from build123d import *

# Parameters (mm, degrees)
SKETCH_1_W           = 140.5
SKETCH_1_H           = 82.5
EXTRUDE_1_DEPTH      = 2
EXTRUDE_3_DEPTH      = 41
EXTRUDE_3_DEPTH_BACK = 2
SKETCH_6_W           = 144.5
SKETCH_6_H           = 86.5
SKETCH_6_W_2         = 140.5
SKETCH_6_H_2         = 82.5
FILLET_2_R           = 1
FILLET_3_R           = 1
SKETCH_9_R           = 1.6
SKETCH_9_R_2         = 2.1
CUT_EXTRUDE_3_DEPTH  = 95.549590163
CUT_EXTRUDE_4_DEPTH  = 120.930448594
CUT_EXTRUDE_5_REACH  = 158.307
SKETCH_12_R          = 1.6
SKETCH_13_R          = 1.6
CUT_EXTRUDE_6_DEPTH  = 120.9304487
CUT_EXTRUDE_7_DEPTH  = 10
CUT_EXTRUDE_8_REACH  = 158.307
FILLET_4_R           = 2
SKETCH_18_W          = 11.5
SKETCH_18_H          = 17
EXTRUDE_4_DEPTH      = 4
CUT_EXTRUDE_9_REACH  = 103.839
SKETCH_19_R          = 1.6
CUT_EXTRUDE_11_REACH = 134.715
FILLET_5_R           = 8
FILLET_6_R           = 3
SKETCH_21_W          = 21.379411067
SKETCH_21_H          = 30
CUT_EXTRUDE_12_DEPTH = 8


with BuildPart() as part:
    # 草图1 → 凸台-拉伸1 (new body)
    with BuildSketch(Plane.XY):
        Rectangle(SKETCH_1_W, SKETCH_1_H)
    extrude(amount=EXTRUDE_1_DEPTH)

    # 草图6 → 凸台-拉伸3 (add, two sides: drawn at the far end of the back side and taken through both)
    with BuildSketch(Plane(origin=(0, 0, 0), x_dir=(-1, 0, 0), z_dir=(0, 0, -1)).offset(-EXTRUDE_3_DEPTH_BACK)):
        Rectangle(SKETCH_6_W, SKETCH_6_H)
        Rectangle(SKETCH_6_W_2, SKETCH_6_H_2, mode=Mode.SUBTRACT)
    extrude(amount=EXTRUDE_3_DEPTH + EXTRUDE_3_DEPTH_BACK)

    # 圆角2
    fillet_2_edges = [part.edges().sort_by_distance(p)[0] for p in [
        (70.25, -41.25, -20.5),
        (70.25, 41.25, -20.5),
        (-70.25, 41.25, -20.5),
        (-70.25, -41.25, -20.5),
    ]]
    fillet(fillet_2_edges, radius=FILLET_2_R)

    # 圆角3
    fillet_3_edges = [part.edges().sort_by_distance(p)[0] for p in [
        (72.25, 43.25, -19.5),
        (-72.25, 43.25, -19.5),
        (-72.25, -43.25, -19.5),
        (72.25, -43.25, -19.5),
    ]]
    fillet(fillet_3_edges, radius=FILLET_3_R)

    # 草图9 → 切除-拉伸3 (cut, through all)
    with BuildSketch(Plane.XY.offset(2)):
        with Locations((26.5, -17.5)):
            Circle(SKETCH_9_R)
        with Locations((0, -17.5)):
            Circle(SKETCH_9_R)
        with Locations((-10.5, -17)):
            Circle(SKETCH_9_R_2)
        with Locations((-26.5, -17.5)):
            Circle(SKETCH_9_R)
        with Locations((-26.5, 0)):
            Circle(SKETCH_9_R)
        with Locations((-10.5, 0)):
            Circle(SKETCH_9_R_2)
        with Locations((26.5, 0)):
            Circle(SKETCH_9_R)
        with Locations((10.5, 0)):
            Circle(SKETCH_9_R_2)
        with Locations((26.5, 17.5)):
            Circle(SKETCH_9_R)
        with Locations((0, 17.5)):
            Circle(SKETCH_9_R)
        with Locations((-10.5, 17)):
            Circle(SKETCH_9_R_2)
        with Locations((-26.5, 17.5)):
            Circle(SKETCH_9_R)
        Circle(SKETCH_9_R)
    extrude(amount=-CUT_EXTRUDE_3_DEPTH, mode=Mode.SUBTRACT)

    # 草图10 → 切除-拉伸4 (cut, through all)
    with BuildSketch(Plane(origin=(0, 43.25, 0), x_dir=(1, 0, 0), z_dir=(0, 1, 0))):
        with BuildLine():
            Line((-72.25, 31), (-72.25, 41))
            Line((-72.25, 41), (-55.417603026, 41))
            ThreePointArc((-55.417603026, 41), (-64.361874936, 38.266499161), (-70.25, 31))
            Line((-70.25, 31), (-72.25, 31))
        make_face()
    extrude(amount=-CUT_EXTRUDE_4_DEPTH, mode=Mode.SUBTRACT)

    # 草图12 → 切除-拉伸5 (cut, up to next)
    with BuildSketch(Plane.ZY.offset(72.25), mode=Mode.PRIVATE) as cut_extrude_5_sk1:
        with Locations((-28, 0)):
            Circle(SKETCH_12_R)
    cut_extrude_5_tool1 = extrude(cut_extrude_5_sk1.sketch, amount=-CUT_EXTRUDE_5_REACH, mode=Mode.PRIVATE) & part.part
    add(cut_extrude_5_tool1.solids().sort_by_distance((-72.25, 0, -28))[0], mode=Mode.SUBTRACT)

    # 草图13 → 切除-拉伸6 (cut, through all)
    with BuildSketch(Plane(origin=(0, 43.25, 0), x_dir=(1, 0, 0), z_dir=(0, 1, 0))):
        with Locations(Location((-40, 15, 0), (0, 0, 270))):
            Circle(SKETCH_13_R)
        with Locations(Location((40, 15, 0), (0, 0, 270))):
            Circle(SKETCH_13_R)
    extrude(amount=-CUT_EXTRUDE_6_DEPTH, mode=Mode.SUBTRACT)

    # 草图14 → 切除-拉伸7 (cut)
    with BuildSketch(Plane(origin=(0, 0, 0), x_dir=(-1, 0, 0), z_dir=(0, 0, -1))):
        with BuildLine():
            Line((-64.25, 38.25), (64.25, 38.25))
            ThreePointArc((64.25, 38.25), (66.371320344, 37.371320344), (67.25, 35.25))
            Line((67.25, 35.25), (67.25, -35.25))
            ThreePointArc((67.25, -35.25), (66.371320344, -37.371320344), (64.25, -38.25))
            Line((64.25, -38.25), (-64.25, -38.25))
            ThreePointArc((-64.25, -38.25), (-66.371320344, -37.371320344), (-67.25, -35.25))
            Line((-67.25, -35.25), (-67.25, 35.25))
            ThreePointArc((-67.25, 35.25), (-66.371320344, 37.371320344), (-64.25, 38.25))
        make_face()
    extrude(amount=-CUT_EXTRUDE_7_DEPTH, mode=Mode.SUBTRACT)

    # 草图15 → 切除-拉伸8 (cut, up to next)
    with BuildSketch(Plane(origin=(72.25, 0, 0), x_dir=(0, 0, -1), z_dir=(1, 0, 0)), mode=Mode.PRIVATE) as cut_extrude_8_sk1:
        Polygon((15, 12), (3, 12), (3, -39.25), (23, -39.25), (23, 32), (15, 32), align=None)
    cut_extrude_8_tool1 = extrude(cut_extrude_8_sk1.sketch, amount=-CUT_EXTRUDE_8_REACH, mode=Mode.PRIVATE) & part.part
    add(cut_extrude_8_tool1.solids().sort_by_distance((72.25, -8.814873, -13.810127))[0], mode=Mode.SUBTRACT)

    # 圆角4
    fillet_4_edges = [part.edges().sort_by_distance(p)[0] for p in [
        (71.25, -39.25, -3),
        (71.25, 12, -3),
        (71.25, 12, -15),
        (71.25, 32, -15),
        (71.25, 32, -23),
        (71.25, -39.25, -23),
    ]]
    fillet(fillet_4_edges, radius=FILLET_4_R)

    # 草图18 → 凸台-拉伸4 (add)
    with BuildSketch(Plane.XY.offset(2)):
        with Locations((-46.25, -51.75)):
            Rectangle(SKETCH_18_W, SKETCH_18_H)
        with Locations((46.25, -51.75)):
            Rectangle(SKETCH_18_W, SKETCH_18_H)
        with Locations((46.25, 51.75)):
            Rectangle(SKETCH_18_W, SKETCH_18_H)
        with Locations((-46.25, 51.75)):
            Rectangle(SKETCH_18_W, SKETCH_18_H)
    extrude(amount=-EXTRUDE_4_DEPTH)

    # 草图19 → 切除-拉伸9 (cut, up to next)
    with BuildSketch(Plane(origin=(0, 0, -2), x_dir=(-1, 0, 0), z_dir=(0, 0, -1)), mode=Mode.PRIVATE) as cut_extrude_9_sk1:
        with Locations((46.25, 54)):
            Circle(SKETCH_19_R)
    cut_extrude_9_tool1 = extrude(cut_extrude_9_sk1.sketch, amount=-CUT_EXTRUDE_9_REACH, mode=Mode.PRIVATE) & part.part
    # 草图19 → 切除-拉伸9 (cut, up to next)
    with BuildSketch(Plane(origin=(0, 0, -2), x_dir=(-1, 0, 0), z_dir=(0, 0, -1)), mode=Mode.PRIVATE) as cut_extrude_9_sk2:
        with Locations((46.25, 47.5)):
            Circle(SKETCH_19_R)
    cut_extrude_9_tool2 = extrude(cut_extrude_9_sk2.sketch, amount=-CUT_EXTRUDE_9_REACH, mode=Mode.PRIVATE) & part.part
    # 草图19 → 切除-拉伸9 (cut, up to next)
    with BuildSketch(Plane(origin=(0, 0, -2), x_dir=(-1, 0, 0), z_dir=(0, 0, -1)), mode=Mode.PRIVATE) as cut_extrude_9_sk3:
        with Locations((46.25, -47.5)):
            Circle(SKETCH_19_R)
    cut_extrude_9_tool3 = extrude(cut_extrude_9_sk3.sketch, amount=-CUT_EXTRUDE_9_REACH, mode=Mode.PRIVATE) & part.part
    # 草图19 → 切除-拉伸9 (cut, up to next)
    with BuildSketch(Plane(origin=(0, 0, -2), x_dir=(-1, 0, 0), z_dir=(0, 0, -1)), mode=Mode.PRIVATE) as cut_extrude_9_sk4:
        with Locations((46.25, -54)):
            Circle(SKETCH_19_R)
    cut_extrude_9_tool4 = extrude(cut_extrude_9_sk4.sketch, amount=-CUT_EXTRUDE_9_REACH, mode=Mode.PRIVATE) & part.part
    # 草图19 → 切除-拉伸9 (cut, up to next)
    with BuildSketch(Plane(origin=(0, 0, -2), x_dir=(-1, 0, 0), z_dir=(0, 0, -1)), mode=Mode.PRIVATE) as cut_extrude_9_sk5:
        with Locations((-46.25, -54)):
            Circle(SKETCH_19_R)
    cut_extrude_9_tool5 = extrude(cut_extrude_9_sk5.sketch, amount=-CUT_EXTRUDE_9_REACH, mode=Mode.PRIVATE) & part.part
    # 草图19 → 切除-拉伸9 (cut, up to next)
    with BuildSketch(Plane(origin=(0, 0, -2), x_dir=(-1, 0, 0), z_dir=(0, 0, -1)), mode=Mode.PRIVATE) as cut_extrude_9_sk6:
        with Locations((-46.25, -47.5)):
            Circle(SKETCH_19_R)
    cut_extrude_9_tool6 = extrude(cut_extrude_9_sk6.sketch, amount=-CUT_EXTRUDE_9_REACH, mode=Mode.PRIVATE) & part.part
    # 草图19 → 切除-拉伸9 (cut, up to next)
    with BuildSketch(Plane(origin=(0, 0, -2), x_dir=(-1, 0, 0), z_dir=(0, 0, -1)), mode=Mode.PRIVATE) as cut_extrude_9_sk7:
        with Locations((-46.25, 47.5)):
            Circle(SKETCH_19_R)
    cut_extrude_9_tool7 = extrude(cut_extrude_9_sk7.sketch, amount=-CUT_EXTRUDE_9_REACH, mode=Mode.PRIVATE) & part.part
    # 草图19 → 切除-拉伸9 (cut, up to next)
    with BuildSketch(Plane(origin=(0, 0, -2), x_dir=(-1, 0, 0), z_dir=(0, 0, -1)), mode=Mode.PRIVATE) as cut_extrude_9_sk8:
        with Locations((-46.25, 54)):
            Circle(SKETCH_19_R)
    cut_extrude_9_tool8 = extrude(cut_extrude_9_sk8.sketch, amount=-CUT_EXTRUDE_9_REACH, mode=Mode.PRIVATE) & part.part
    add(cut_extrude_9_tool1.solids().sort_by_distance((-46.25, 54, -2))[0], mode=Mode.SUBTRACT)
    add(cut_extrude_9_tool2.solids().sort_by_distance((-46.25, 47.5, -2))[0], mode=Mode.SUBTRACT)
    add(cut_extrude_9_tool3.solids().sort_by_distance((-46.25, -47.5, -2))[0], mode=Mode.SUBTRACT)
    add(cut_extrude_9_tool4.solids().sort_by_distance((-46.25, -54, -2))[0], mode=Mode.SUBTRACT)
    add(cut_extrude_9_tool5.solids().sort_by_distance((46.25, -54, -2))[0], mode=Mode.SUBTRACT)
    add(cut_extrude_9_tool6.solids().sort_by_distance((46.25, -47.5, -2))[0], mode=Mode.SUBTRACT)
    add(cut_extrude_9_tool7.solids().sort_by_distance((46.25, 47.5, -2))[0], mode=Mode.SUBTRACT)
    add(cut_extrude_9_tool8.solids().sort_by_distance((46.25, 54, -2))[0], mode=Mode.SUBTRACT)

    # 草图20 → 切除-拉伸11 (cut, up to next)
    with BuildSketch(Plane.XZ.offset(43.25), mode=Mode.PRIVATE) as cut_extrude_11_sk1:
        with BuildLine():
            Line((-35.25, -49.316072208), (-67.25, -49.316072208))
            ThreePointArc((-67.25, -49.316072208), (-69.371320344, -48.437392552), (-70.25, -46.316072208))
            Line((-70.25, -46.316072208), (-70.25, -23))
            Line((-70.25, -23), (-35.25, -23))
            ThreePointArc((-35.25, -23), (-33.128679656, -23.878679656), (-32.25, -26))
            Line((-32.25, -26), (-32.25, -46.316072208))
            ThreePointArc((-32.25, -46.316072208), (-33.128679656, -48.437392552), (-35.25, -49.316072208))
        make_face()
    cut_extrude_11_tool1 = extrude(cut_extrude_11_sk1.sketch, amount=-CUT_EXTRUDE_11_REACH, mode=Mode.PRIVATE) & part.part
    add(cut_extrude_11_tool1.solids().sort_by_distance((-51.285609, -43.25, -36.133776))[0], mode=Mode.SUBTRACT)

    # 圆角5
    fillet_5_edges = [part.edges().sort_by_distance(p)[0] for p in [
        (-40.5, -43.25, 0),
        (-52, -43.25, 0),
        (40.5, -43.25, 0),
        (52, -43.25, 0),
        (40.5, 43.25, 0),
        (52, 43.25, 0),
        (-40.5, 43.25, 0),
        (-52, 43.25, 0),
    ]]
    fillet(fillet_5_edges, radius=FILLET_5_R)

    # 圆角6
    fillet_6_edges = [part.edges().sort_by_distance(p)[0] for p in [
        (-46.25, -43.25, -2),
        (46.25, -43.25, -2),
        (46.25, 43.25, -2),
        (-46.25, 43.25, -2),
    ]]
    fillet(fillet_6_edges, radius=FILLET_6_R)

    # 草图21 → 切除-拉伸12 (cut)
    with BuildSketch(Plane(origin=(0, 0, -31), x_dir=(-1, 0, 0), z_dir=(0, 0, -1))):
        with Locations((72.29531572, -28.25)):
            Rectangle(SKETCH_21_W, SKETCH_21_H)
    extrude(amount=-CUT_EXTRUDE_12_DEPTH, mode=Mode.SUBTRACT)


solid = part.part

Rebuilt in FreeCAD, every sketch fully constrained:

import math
import FreeCAD as App
import Part
import Sketcher

V = App.Vector
Q = App.Units.Quantity


def edges_at(feature, points):
    """Names of the edges that pass closest to the given points."""
    edges = feature.Shape.Edges
    near = lambda p: min(range(len(edges)), key=lambda i: edges[i].distToShape(Part.Vertex(*p))[0])
    return sorted({f"Edge{near(p) + 1}" for p in points})

doc = App.newDocument("Part")
body = doc.addObject("PartDesign::Body", "Body")

# Sketch on XY plane
sketch1 = body.newObject("Sketcher::SketchObject", "Sketch")
sketch1.AttachmentSupport = (doc.getObject("XY_Plane"), [""])
sketch1.MapMode = "FlatFace"
sketch1.addGeometry([
    Part.LineSegment(V(-70.25, 41.25, 0), V(-70.25, -41.25, 0)),
    Part.LineSegment(V(-70.25, -41.25, 0), V(70.25, -41.25, 0)),
    Part.LineSegment(V(70.25, -41.25, 0), V(70.25, 41.25, 0)),
    Part.LineSegment(V(70.25, 41.25, 0), V(-70.25, 41.25, 0)),
], False)
sketch1.addConstraint([
    Sketcher.Constraint("Coincident", 0, 2, 1, 1),
    Sketcher.Constraint("Coincident", 1, 2, 2, 1),
    Sketcher.Constraint("Coincident", 2, 2, 3, 1),
    Sketcher.Constraint("Coincident", 3, 2, 0, 1),
    Sketcher.Constraint("Vertical", 0),
    Sketcher.Constraint("Horizontal", 1),
    Sketcher.Constraint("Vertical", 2),
    Sketcher.Constraint("Horizontal", 3),
    Sketcher.Constraint("Symmetric", 0, 2, 2, 2, -1, 1),
    Sketcher.Constraint("DistanceX", 1, 1, 1, 2, Q("140.5 mm")),
    Sketcher.Constraint("DistanceY", 0, 2, 0, 1, Q("82.5 mm")),
])
pad1 = body.newObject("PartDesign::Pad", "Pad")
pad1.Profile = sketch1
pad1.Length = 2

# Sketch on XY plane
sketch2 = body.newObject("Sketcher::SketchObject", "Sketch001")
sketch2.AttachmentSupport = (doc.getObject("XY_Plane"), [""])
sketch2.MapMode = "FlatFace"
sketch2.addGeometry([
    Part.LineSegment(V(72.25, 43.25, 0), V(72.25, -43.25, 0)),  # 0
    Part.LineSegment(V(72.25, -43.25, 0), V(-72.25, -43.25, 0)),  # 1
    Part.LineSegment(V(-72.25, -43.25, 0), V(-72.25, 43.25, 0)),  # 2
    Part.LineSegment(V(-72.25, 43.25, 0), V(72.25, 43.25, 0)),  # 3
    Part.LineSegment(V(-70.25, -41.25, 0), V(70.25, -41.25, 0)),  # 4
    Part.LineSegment(V(70.25, -41.25, 0), V(70.25, 41.25, 0)),  # 5
    Part.LineSegment(V(70.25, 41.25, 0), V(-70.25, 41.25, 0)),  # 6
    Part.LineSegment(V(-70.25, 41.25, 0), V(-70.25, -41.25, 0)),  # 7
], False)
sketch2.addConstraint([
    Sketcher.Constraint("Coincident", 0, 2, 1, 1),
    Sketcher.Constraint("Coincident", 1, 2, 2, 1),
    Sketcher.Constraint("Coincident", 2, 2, 3, 1),
    Sketcher.Constraint("Coincident", 3, 2, 0, 1),
    Sketcher.Constraint("Coincident", 4, 2, 5, 1),
    Sketcher.Constraint("Coincident", 5, 2, 6, 1),
    Sketcher.Constraint("Coincident", 6, 2, 7, 1),
    Sketcher.Constraint("Coincident", 7, 2, 4, 1),
    Sketcher.Constraint("Vertical", 0),
    Sketcher.Constraint("Horizontal", 1),
    Sketcher.Constraint("Vertical", 2),
    Sketcher.Constraint("Horizontal", 3),
    Sketcher.Constraint("Horizontal", 4),
    Sketcher.Constraint("Vertical", 5),
    Sketcher.Constraint("Horizontal", 6),
    Sketcher.Constraint("Vertical", 7),
    Sketcher.Constraint("Symmetric", 0, 2, 2, 2, -1, 1),
    Sketcher.Constraint("Symmetric", 4, 2, 6, 2, -1, 1),
    Sketcher.Constraint("DistanceX", 1, 2, 1, 1, Q("144.5 mm")),
    Sketcher.Constraint("DistanceX", 4, 1, 4, 2, Q("140.5 mm")),
    Sketcher.Constraint("DistanceY", 0, 2, 0, 1, Q("86.5 mm")),
    Sketcher.Constraint("DistanceY", 5, 1, 5, 2, Q("82.5 mm")),
])
pad2 = body.newObject("PartDesign::Pad", "Pad001")
pad2.Profile = sketch2
pad2.Type = "TwoLengths"
pad2.Length = 41
pad2.Length2 = 2
pad2.Reversed = True
doc.recompute()

fillet = body.newObject("PartDesign::Fillet", "Fillet")
fillet.Base = (pad2, edges_at(pad2, [
    (70.25, -41.25, -20.5),
    (70.25, 41.25, -20.5),
    (-70.25, 41.25, -20.5),
    (-70.25, -41.25, -20.5),
]))
fillet.Radius = 1
doc.recompute()

fillet2 = body.newObject("PartDesign::Fillet", "Fillet001")
fillet2.Base = (fillet, edges_at(fillet, [
    (72.25, 43.25, -19.5),
    (-72.25, 43.25, -19.5),
    (-72.25, -43.25, -19.5),
    (72.25, -43.25, -19.5),
]))
fillet2.Radius = 1

# Sketch on XY plane
sketch3 = body.newObject("Sketcher::SketchObject", "Sketch002")
sketch3.AttachmentSupport = (doc.getObject("XY_Plane"), [""])
sketch3.MapMode = "FlatFace"
sketch3.AttachmentOffset = App.Placement(V(0, 0, 2), App.Rotation())
sketch3.addGeometry([
    Part.Circle(V(26.5, -17.5, 0), V(0, 0, 1), 1.6),  # 0
    Part.Circle(V(0, -17.5, 0), V(0, 0, 1), 1.6),  # 1
    Part.Circle(V(-10.5, -17, 0), V(0, 0, 1), 2.1),  # 2
    Part.Circle(V(-26.5, -17.5, 0), V(0, 0, 1), 1.6),  # 3
    Part.Circle(V(-26.5, 0, 0), V(0, 0, 1), 1.6),  # 4
    Part.Circle(V(-10.5, 0, 0), V(0, 0, 1), 2.1),  # 5
    Part.Circle(V(26.5, 0, 0), V(0, 0, 1), 1.6),  # 6
    Part.Circle(V(10.5, 0, 0), V(0, 0, 1), 2.1),  # 7
    Part.Circle(V(26.5, 17.5, 0), V(0, 0, 1), 1.6),  # 8
    Part.Circle(V(0, 17.5, 0), V(0, 0, 1), 1.6),  # 9
    Part.Circle(V(-10.5, 17, 0), V(0, 0, 1), 2.1),  # 10
    Part.Circle(V(-26.5, 17.5, 0), V(0, 0, 1), 1.6),  # 11
    Part.Circle(V(0, 0, 0), V(0, 0, 1), 1.6),  # 12
], False)
sketch3.addConstraint([
    Sketcher.Constraint("Coincident", 12, 3, -1, 1),
    Sketcher.Constraint("Equal", 0, 1),
    Sketcher.Constraint("Equal", 1, 3),
    Sketcher.Constraint("Equal", 3, 4),
    Sketcher.Constraint("Equal", 2, 5),
    Sketcher.Constraint("Equal", 4, 6),
    Sketcher.Constraint("Equal", 5, 7),
    Sketcher.Constraint("Equal", 6, 8),
    Sketcher.Constraint("Equal", 8, 9),
    Sketcher.Constraint("Equal", 7, 10),
    Sketcher.Constraint("Equal", 9, 11),
    Sketcher.Constraint("Equal", 11, 12),
    Sketcher.Constraint("Symmetric", 4, 3, 6, 3, -1, 1),
    Sketcher.Constraint("Symmetric", 5, 3, 7, 3, -1, 1),
    Sketcher.Constraint("Symmetric", 3, 3, 8, 3, -1, 1),
    Sketcher.Constraint("Symmetric", 1, 3, 9, 3, -1, 1),
    Sketcher.Constraint("Symmetric", 0, 3, 11, 3, -1, 1),
    Sketcher.Constraint("Symmetric", 0, 3, 3, 3, -2),
    Sketcher.Constraint("Symmetric", 2, 3, 10, 3, -1),
    Sketcher.Constraint("PointOnObject", 1, 3, -2),
    Sketcher.Constraint("PointOnObject", 4, 3, -1),
    Sketcher.Constraint("PointOnObject", 5, 3, -1),
    Sketcher.Constraint("Horizontal", 0, 3, 1, 3),
    Sketcher.Constraint("Vertical", 3, 3, 4, 3),
    Sketcher.Constraint("Vertical", 2, 3, 5, 3),
    Sketcher.Constraint("Diameter", 0, Q("3.2 mm")),
    Sketcher.Constraint("Diameter", 2, Q("4.2 mm")),
    Sketcher.Constraint("DistanceY", 2, 3, -1, 1, Q("17 mm")),
    Sketcher.Constraint("DistanceX", 2, 3, 0, 3, Q("37 mm")),
    Sketcher.Constraint("DistanceX", 3, 3, 2, 3, Q("16 mm")),
    Sketcher.Constraint("DistanceY", 0, 3, 8, 3, Q("35 mm")),
])
pocket1 = body.newObject("PartDesign::Pocket", "Pocket")
pocket1.Profile = sketch3
pocket1.Type = "ThroughAll"

# Sketch on XZ plane
sketch4 = body.newObject("Sketcher::SketchObject", "Sketch003")
sketch4.AttachmentSupport = (doc.getObject("XZ_Plane"), [""])
sketch4.MapMode = "FlatFace"
sketch4.AttachmentOffset = App.Placement(V(0, 0, -43.25), App.Rotation())
sketch4.addGeometry([
    Part.LineSegment(V(-72.25, -41, 0), V(-72.25, -31, 0)),
    Part.LineSegment(V(-72.25, -31, 0), V(-70.25, -31, 0)),
    Part.ArcOfCircle(Part.Circle(V(-55.417603, -25, 0), V(0, 0, 1), 16), math.radians(-157.975687), math.radians(-90)),
    Part.LineSegment(V(-55.417603, -41, 0), V(-72.25, -41, 0)),
], False)
sketch4.addConstraint([
    Sketcher.Constraint("Coincident", 0, 2, 1, 1),
    Sketcher.Constraint("Coincident", 1, 2, 2, 1),
    Sketcher.Constraint("Tangent", 2, 2, 3, 1),
    Sketcher.Constraint("Coincident", 3, 2, 0, 1),
    Sketcher.Constraint("Vertical", 0),
    Sketcher.Constraint("Horizontal", 1),
    Sketcher.Constraint("Horizontal", 3),
    Sketcher.Constraint("Radius", 2, Q("16 mm")),
    Sketcher.Constraint("DistanceX", 1, 1, 1, 2, Q("2 mm")),
    Sketcher.Constraint("DistanceY", 0, 1, 0, 2, Q("10 mm")),
    Sketcher.Constraint("DistanceY", 2, 3, -1, 1, Q("25 mm")),
    Sketcher.Constraint("DistanceX", 0, 2, -1, 1, Q("72.25 mm")),
])
pocket2 = body.newObject("PartDesign::Pocket", "Pocket001")
pocket2.Profile = sketch4
pocket2.Type = "ThroughAll"
pocket2.Reversed = True

# Sketch on YZ plane
sketch5 = body.newObject("Sketcher::SketchObject", "Sketch004")
sketch5.AttachmentSupport = (doc.getObject("YZ_Plane"), [""])
sketch5.MapMode = "FlatFace"
sketch5.AttachmentOffset = App.Placement(V(0, 0, -72.25), App.Rotation())
sketch5.addGeometry(Part.Circle(V(0, -28, 0), V(0, 0, 1), 1.6), False)
sketch5.addConstraint([
    Sketcher.Constraint("PointOnObject", 0, 3, -2),
    Sketcher.Constraint("Diameter", 0, Q("3.2 mm")),
    Sketcher.Constraint("DistanceY", 0, 3, -1, 1, Q("28 mm")),
])
pocket3 = body.newObject("PartDesign::Pocket", "Pocket002")
pocket3.Profile = sketch5
pocket3.Type = "UpToFirst"
pocket3.Reversed = True

# Sketch on XZ plane
sketch6 = body.newObject("Sketcher::SketchObject", "Sketch005")
sketch6.AttachmentSupport = (doc.getObject("XZ_Plane"), [""])
sketch6.MapMode = "FlatFace"
sketch6.AttachmentOffset = App.Placement(V(0, 0, -43.25), App.Rotation())
sketch6.addGeometry([
    Part.Circle(V(-40, -15, 0), V(0, 0, 1), 1.6),
    Part.Circle(V(40, -15, 0), V(0, 0, 1), 1.6),
], False)
sketch6.addConstraint([
    Sketcher.Constraint("Equal", 0, 1),
    Sketcher.Constraint("Symmetric", 0, 3, 1, 3, -2),
    Sketcher.Constraint("Diameter", 0, Q("3.2 mm")),
    Sketcher.Constraint("DistanceX", 0, 3, -1, 1, Q("40 mm")),
    Sketcher.Constraint("DistanceY", 0, 3, -1, 1, Q("15 mm")),
])
pocket4 = body.newObject("PartDesign::Pocket", "Pocket003")
pocket4.Profile = sketch6
pocket4.Type = "ThroughAll"
pocket4.Reversed = True

# Sketch on XY plane
sketch7 = body.newObject("Sketcher::SketchObject", "Sketch006")
sketch7.AttachmentSupport = (doc.getObject("XY_Plane"), [""])
sketch7.MapMode = "FlatFace"
sketch7.addGeometry([
    Part.LineSegment(V(-64.25, 38.25, 0), V(64.25, 38.25, 0)),  # 0
    Part.ArcOfCircle(Part.Circle(V(64.25, 35.25, 0), V(0, 0, 1), 3), math.radians(0), math.radians(90)),  # 1
    Part.LineSegment(V(67.25, 35.25, 0), V(67.25, -35.25, 0)),  # 2
    Part.ArcOfCircle(Part.Circle(V(64.25, -35.25, 0), V(0, 0, 1), 3), math.radians(-90), math.radians(0)),  # 3
    Part.LineSegment(V(64.25, -38.25, 0), V(-64.25, -38.25, 0)),  # 4
    Part.ArcOfCircle(Part.Circle(V(-64.25, -35.25, 0), V(0, 0, 1), 3), math.radians(180), math.radians(270)),  # 5
    Part.LineSegment(V(-67.25, -35.25, 0), V(-67.25, 35.25, 0)),  # 6
    Part.ArcOfCircle(Part.Circle(V(-64.25, 35.25, 0), V(0, 0, 1), 3), math.radians(90), math.radians(180)),  # 7
], False)
sketch7.addConstraint([
    Sketcher.Constraint("Tangent", 0, 2, 1, 2),
    Sketcher.Constraint("Tangent", 1, 1, 2, 1),
    Sketcher.Constraint("Tangent", 2, 2, 3, 2),
    Sketcher.Constraint("Tangent", 3, 1, 4, 1),
    Sketcher.Constraint("Tangent", 4, 2, 5, 2),
    Sketcher.Constraint("Tangent", 5, 1, 6, 1),
    Sketcher.Constraint("Tangent", 6, 2, 7, 2),
    Sketcher.Constraint("Tangent", 7, 1, 0, 1),
    Sketcher.Constraint("Horizontal", 0),
    Sketcher.Constraint("Vertical", 2),
    Sketcher.Constraint("Horizontal", 4),
    Sketcher.Constraint("Vertical", 6),
    Sketcher.Constraint("Equal", 1, 3),
    Sketcher.Constraint("Equal", 3, 5),
    Sketcher.Constraint("Equal", 5, 7),
    Sketcher.Constraint("Symmetric", 1, 3, 5, 3, -1, 1),
    Sketcher.Constraint("Radius", 1, Q("3 mm")),
    Sketcher.Constraint("DistanceX", 0, 1, 0, 2, Q("128.5 mm")),
    Sketcher.Constraint("DistanceY", 2, 2, 2, 1, Q("70.5 mm")),
])
pocket5 = body.newObject("PartDesign::Pocket", "Pocket004")
pocket5.Profile = sketch7
pocket5.Length = 10
pocket5.Reversed = True

# Sketch on YZ plane
sketch8 = body.newObject("Sketcher::SketchObject", "Sketch007")
sketch8.AttachmentSupport = (doc.getObject("YZ_Plane"), [""])
sketch8.MapMode = "FlatFace"
sketch8.AttachmentOffset = App.Placement(V(0, 0, 72.25), App.Rotation())
sketch8.addGeometry([
    Part.LineSegment(V(12, -15, 0), V(12, -3, 0)),  # 0
    Part.LineSegment(V(12, -3, 0), V(-39.25, -3, 0)),  # 1
    Part.LineSegment(V(-39.25, -3, 0), V(-39.25, -23, 0)),  # 2
    Part.LineSegment(V(-39.25, -23, 0), V(32, -23, 0)),  # 3
    Part.LineSegment(V(32, -23, 0), V(32, -15, 0)),  # 4
    Part.LineSegment(V(32, -15, 0), V(12, -15, 0)),  # 5
], False)
sketch8.addConstraint([
    Sketcher.Constraint("Coincident", 0, 2, 1, 1),
    Sketcher.Constraint("Coincident", 1, 2, 2, 1),
    Sketcher.Constraint("Coincident", 2, 2, 3, 1),
    Sketcher.Constraint("Coincident", 3, 2, 4, 1),
    Sketcher.Constraint("Coincident", 4, 2, 5, 1),
    Sketcher.Constraint("Coincident", 5, 2, 0, 1),
    Sketcher.Constraint("Vertical", 0),
    Sketcher.Constraint("Horizontal", 1),
    Sketcher.Constraint("Vertical", 2),
    Sketcher.Constraint("Horizontal", 3),
    Sketcher.Constraint("Vertical", 4),
    Sketcher.Constraint("Horizontal", 5),
    Sketcher.Constraint("Equal", 5, 2),
    Sketcher.Constraint("DistanceX", 5, 2, 5, 1, Q("20 mm")),
    Sketcher.Constraint("DistanceY", 0, 1, 0, 2, Q("12 mm")),
    Sketcher.Constraint("DistanceX", -1, 1, 0, 2, Q("12 mm")),
    Sketcher.Constraint("DistanceY", 0, 2, -1, 1, Q("3 mm")),
    Sketcher.Constraint("DistanceX", 1, 2, 1, 1, Q("51.25 mm")),
])
pocket6 = body.newObject("PartDesign::Pocket", "Pocket005")
pocket6.Profile = sketch8
pocket6.Type = "UpToFirst"
doc.recompute()

fillet3 = body.newObject("PartDesign::Fillet", "Fillet002")
fillet3.Base = (pocket6, edges_at(pocket6, [
    (71.25, -39.25, -3),
    (71.25, 12, -3),
    (71.25, 12, -15),
    (71.25, 32, -15),
    (71.25, 32, -23),
    (71.25, -39.25, -23),
]))
fillet3.Radius = 2

# Sketch on XY plane
sketch9 = body.newObject("Sketcher::SketchObject", "Sketch008")
sketch9.AttachmentSupport = (doc.getObject("XY_Plane"), [""])
sketch9.MapMode = "FlatFace"
sketch9.AttachmentOffset = App.Placement(V(0, 0, 2), App.Rotation())
sketch9.addGeometry([
    Part.LineSegment(V(-52, -43.25, 0), V(-52, -60.25, 0)),  # 0
    Part.LineSegment(V(-52, -60.25, 0), V(-40.5, -60.25, 0)),  # 1
    Part.LineSegment(V(-40.5, -60.25, 0), V(-40.5, -43.25, 0)),  # 2
    Part.LineSegment(V(-40.5, -43.25, 0), V(-52, -43.25, 0)),  # 3
    Part.LineSegment(V(40.5, -43.25, 0), V(40.5, -60.25, 0)),  # 4
    Part.LineSegment(V(40.5, -60.25, 0), V(52, -60.25, 0)),  # 5
    Part.LineSegment(V(52, -60.25, 0), V(52, -43.25, 0)),  # 6
    Part.LineSegment(V(52, -43.25, 0), V(40.5, -43.25, 0)),  # 7
    Part.LineSegment(V(40.5, 60.25, 0), V(40.5, 43.25, 0)),  # 8
    Part.LineSegment(V(40.5, 43.25, 0), V(52, 43.25, 0)),  # 9
    Part.LineSegment(V(52, 43.25, 0), V(52, 60.25, 0)),  # 10
    Part.LineSegment(V(52, 60.25, 0), V(40.5, 60.25, 0)),  # 11
    Part.LineSegment(V(-52, 60.25, 0), V(-52, 43.25, 0)),  # 12
    Part.LineSegment(V(-52, 43.25, 0), V(-40.5, 43.25, 0)),  # 13
    Part.LineSegment(V(-40.5, 43.25, 0), V(-40.5, 60.25, 0)),  # 14
    Part.LineSegment(V(-40.5, 60.25, 0), V(-52, 60.25, 0)),  # 15
], False)
sketch9.addConstraint([
    Sketcher.Constraint("Coincident", 0, 2, 1, 1),
    Sketcher.Constraint("Coincident", 1, 2, 2, 1),
    Sketcher.Constraint("Coincident", 2, 2, 3, 1),
    Sketcher.Constraint("Coincident", 3, 2, 0, 1),
    Sketcher.Constraint("Coincident", 4, 2, 5, 1),
    Sketcher.Constraint("Coincident", 5, 2, 6, 1),
    Sketcher.Constraint("Coincident", 6, 2, 7, 1),
    Sketcher.Constraint("Coincident", 7, 2, 4, 1),
    Sketcher.Constraint("Coincident", 8, 2, 9, 1),
    Sketcher.Constraint("Coincident", 9, 2, 10, 1),
    Sketcher.Constraint("Coincident", 10, 2, 11, 1),
    Sketcher.Constraint("Coincident", 11, 2, 8, 1),
    Sketcher.Constraint("Coincident", 12, 2, 13, 1),
    Sketcher.Constraint("Coincident", 13, 2, 14, 1),
    Sketcher.Constraint("Coincident", 14, 2, 15, 1),
    Sketcher.Constraint("Coincident", 15, 2, 12, 1),
    Sketcher.Constraint("Vertical", 0),
    Sketcher.Constraint("Horizontal", 1),
    Sketcher.Constraint("Vertical", 2),
    Sketcher.Constraint("Horizontal", 3),
    Sketcher.Constraint("Vertical", 4),
    Sketcher.Constraint("Horizontal", 5),
    Sketcher.Constraint("Vertical", 6),
    Sketcher.Constraint("Horizontal", 7),
    Sketcher.Constraint("Vertical", 8),
    Sketcher.Constraint("Horizontal", 9),
    Sketcher.Constraint("Vertical", 10),
    Sketcher.Constraint("Horizontal", 11),
    Sketcher.Constraint("Vertical", 12),
    Sketcher.Constraint("Horizontal", 13),
    Sketcher.Constraint("Vertical", 14),
    Sketcher.Constraint("Horizontal", 15),
    Sketcher.Constraint("Symmetric", 2, 2, 8, 2, -1, 1),
    Sketcher.Constraint("Symmetric", 0, 2, 10, 2, -1, 1),
    Sketcher.Constraint("Symmetric", 6, 2, 12, 2, -1, 1),
    Sketcher.Constraint("Symmetric", 4, 2, 14, 2, -1, 1),
    Sketcher.Constraint("Symmetric", 1, 2, 4, 2, -2),
    Sketcher.Constraint("Symmetric", 3, 2, 6, 2, -2),
    Sketcher.Constraint("DistanceY", 0, 2, 0, 1, Q("17 mm")),
    Sketcher.Constraint("DistanceX", 1, 1, 1, 2, Q("11.5 mm")),
    Sketcher.Constraint("DistanceX", 0, 2, -1, 1, Q("52 mm")),
    Sketcher.Constraint("DistanceY", 7, 2, 8, 2, Q("86.5 mm")),
])
pad3 = body.newObject("PartDesign::Pad", "Pad002")
pad3.Profile = sketch9
pad3.Length = 4
pad3.Reversed = True

# Sketch on XY plane
sketch10 = body.newObject("Sketcher::SketchObject", "Sketch009")
sketch10.AttachmentSupport = (doc.getObject("XY_Plane"), [""])
sketch10.MapMode = "FlatFace"
sketch10.AttachmentOffset = App.Placement(V(0, 0, -2), App.Rotation())
sketch10.addGeometry(Part.Circle(V(-46.25, 54, 0), V(0, 0, 1), 1.6), False)
sketch10.addConstraint([
    Sketcher.Constraint("Diameter", 0, Q("3.2 mm")),
    Sketcher.Constraint("DistanceY", -1, 1, 0, 3, Q("54 mm")),
    Sketcher.Constraint("DistanceX", 0, 3, -1, 1, Q("46.25 mm")),
])
pocket7 = body.newObject("PartDesign::Pocket", "Pocket006")
pocket7.Profile = sketch10
pocket7.Type = "UpToFirst"
pocket7.Reversed = True

# Sketch on XY plane
sketch11 = body.newObject("Sketcher::SketchObject", "Sketch010")
sketch11.AttachmentSupport = (doc.getObject("XY_Plane"), [""])
sketch11.MapMode = "FlatFace"
sketch11.AttachmentOffset = App.Placement(V(0, 0, -2), App.Rotation())
sketch11.addGeometry(Part.Circle(V(-46.25, 47.5, 0), V(0, 0, 1), 1.6), False)
sketch11.addConstraint([
    Sketcher.Constraint("Diameter", 0, Q("3.2 mm")),
    Sketcher.Constraint("DistanceY", -1, 1, 0, 3, Q("47.5 mm")),
    Sketcher.Constraint("DistanceX", 0, 3, -1, 1, Q("46.25 mm")),
])
pocket8 = body.newObject("PartDesign::Pocket", "Pocket007")
pocket8.Profile = sketch11
pocket8.Type = "UpToFirst"
pocket8.Reversed = True

# Sketch on XY plane
sketch12 = body.newObject("Sketcher::SketchObject", "Sketch011")
sketch12.AttachmentSupport = (doc.getObject("XY_Plane"), [""])
sketch12.MapMode = "FlatFace"
sketch12.AttachmentOffset = App.Placement(V(0, 0, -2), App.Rotation())
sketch12.addGeometry(Part.Circle(V(-46.25, -47.5, 0), V(0, 0, 1), 1.6), False)
sketch12.addConstraint([
    Sketcher.Constraint("Diameter", 0, Q("3.2 mm")),
    Sketcher.Constraint("DistanceY", 0, 3, -1, 1, Q("47.5 mm")),
    Sketcher.Constraint("DistanceX", 0, 3, -1, 1, Q("46.25 mm")),
])
pocket9 = body.newObject("PartDesign::Pocket", "Pocket008")
pocket9.Profile = sketch12
pocket9.Type = "UpToFirst"
pocket9.Reversed = True

# Sketch on XY plane
sketch13 = body.newObject("Sketcher::SketchObject", "Sketch012")
sketch13.AttachmentSupport = (doc.getObject("XY_Plane"), [""])
sketch13.MapMode = "FlatFace"
sketch13.AttachmentOffset = App.Placement(V(0, 0, -2), App.Rotation())
sketch13.addGeometry(Part.Circle(V(-46.25, -54, 0), V(0, 0, 1), 1.6), False)
sketch13.addConstraint([
    Sketcher.Constraint("Diameter", 0, Q("3.2 mm")),
    Sketcher.Constraint("DistanceY", 0, 3, -1, 1, Q("54 mm")),
    Sketcher.Constraint("DistanceX", 0, 3, -1, 1, Q("46.25 mm")),
])
pocket10 = body.newObject("PartDesign::Pocket", "Pocket009")
pocket10.Profile = sketch13
pocket10.Type = "UpToFirst"
pocket10.Reversed = True

# Sketch on XY plane
sketch14 = body.newObject("Sketcher::SketchObject", "Sketch013")
sketch14.AttachmentSupport = (doc.getObject("XY_Plane"), [""])
sketch14.MapMode = "FlatFace"
sketch14.AttachmentOffset = App.Placement(V(0, 0, -2), App.Rotation())
sketch14.addGeometry(Part.Circle(V(46.25, -54, 0), V(0, 0, 1), 1.6), False)
sketch14.addConstraint([
    Sketcher.Constraint("Diameter", 0, Q("3.2 mm")),
    Sketcher.Constraint("DistanceY", 0, 3, -1, 1, Q("54 mm")),
    Sketcher.Constraint("DistanceX", -1, 1, 0, 3, Q("46.25 mm")),
])
pocket11 = body.newObject("PartDesign::Pocket", "Pocket010")
pocket11.Profile = sketch14
pocket11.Type = "UpToFirst"
pocket11.Reversed = True

# Sketch on XY plane
sketch15 = body.newObject("Sketcher::SketchObject", "Sketch014")
sketch15.AttachmentSupport = (doc.getObject("XY_Plane"), [""])
sketch15.MapMode = "FlatFace"
sketch15.AttachmentOffset = App.Placement(V(0, 0, -2), App.Rotation())
sketch15.addGeometry(Part.Circle(V(46.25, -47.5, 0), V(0, 0, 1), 1.6), False)
sketch15.addConstraint([
    Sketcher.Constraint("Diameter", 0, Q("3.2 mm")),
    Sketcher.Constraint("DistanceY", 0, 3, -1, 1, Q("47.5 mm")),
    Sketcher.Constraint("DistanceX", -1, 1, 0, 3, Q("46.25 mm")),
])
pocket12 = body.newObject("PartDesign::Pocket", "Pocket011")
pocket12.Profile = sketch15
pocket12.Type = "UpToFirst"
pocket12.Reversed = True

# Sketch on XY plane
sketch16 = body.newObject("Sketcher::SketchObject", "Sketch015")
sketch16.AttachmentSupport = (doc.getObject("XY_Plane"), [""])
sketch16.MapMode = "FlatFace"
sketch16.AttachmentOffset = App.Placement(V(0, 0, -2), App.Rotation())
sketch16.addGeometry(Part.Circle(V(46.25, 47.5, 0), V(0, 0, 1), 1.6), False)
sketch16.addConstraint([
    Sketcher.Constraint("Diameter", 0, Q("3.2 mm")),
    Sketcher.Constraint("DistanceY", -1, 1, 0, 3, Q("47.5 mm")),
    Sketcher.Constraint("DistanceX", -1, 1, 0, 3, Q("46.25 mm")),
])
pocket13 = body.newObject("PartDesign::Pocket", "Pocket012")
pocket13.Profile = sketch16
pocket13.Type = "UpToFirst"
pocket13.Reversed = True

# Sketch on XY plane
sketch17 = body.newObject("Sketcher::SketchObject", "Sketch016")
sketch17.AttachmentSupport = (doc.getObject("XY_Plane"), [""])
sketch17.MapMode = "FlatFace"
sketch17.AttachmentOffset = App.Placement(V(0, 0, -2), App.Rotation())
sketch17.addGeometry(Part.Circle(V(46.25, 54, 0), V(0, 0, 1), 1.6), False)
sketch17.addConstraint([
    Sketcher.Constraint("Diameter", 0, Q("3.2 mm")),
    Sketcher.Constraint("DistanceY", -1, 1, 0, 3, Q("54 mm")),
    Sketcher.Constraint("DistanceX", -1, 1, 0, 3, Q("46.25 mm")),
])
pocket14 = body.newObject("PartDesign::Pocket", "Pocket013")
pocket14.Profile = sketch17
pocket14.Type = "UpToFirst"
pocket14.Reversed = True

# Sketch on XZ plane
sketch18 = body.newObject("Sketcher::SketchObject", "Sketch017")
sketch18.AttachmentSupport = (doc.getObject("XZ_Plane"), [""])
sketch18.MapMode = "FlatFace"
sketch18.AttachmentOffset = App.Placement(V(0, 0, 43.25), App.Rotation())
sketch18.addGeometry([
    Part.LineSegment(V(-67.25, -49.316072, 0), V(-35.25, -49.316072, 0)),  # 0
    Part.ArcOfCircle(Part.Circle(V(-35.25, -46.316072, 0), V(0, 0, 1), 3), math.radians(-90), math.radians(0)),  # 1
    Part.LineSegment(V(-32.25, -46.316072, 0), V(-32.25, -26, 0)),  # 2
    Part.ArcOfCircle(Part.Circle(V(-35.25, -26, 0), V(0, 0, 1), 3), math.radians(0), math.radians(90)),  # 3
    Part.LineSegment(V(-35.25, -23, 0), V(-70.25, -23, 0)),  # 4
    Part.LineSegment(V(-70.25, -23, 0), V(-70.25, -46.316072, 0)),  # 5
    Part.ArcOfCircle(Part.Circle(V(-67.25, -46.316072, 0), V(0, 0, 1), 3), math.radians(180), math.radians(270)),  # 6
], False)
sketch18.addConstraint([
    Sketcher.Constraint("Tangent", 0, 2, 1, 1),
    Sketcher.Constraint("Tangent", 1, 2, 2, 1),
    Sketcher.Constraint("Tangent", 2, 2, 3, 1),
    Sketcher.Constraint("Tangent", 3, 2, 4, 1),
    Sketcher.Constraint("Coincident", 4, 2, 5, 1),
    Sketcher.Constraint("Tangent", 5, 2, 6, 1),
    Sketcher.Constraint("Tangent", 6, 2, 0, 1),
    Sketcher.Constraint("Horizontal", 0),
    Sketcher.Constraint("Vertical", 2),
    Sketcher.Constraint("Horizontal", 4),
    Sketcher.Constraint("Vertical", 5),
    Sketcher.Constraint("Equal", 1, 3),
    Sketcher.Constraint("Equal", 3, 6),
    Sketcher.Constraint("Radius", 1, Q("3 mm")),
    Sketcher.Constraint("DistanceX", 0, 1, 0, 2, Q("32 mm")),
    Sketcher.Constraint("DistanceY", 3, 3, -1, 1, Q("26 mm")),
    Sketcher.Constraint("DistanceX", 1, 3, -1, 1, Q("35.25 mm")),
    Sketcher.Constraint("DistanceY", 2, 1, 2, 2, Q("20.316072 mm")),
])
pocket15 = body.newObject("PartDesign::Pocket", "Pocket014")
pocket15.Profile = sketch18
pocket15.Type = "UpToFirst"
doc.recompute()

fillet4 = body.newObject("PartDesign::Fillet", "Fillet003")
fillet4.Base = (pocket15, edges_at(pocket15, [
    (-40.5, -43.25, 0),
    (-52, -43.25, 0),
    (40.5, -43.25, 0),
    (52, -43.25, 0),
    (40.5, 43.25, 0),
    (52, 43.25, 0),
    (-40.5, 43.25, 0),
    (-52, 43.25, 0),
]))
fillet4.Radius = 8
doc.recompute()

fillet5 = body.newObject("PartDesign::Fillet", "Fillet004")
fillet5.Base = (fillet4, edges_at(fillet4, [
    (-46.25, -43.25, -2),
    (46.25, -43.25, -2),
    (46.25, 43.25, -2),
    (-46.25, 43.25, -2),
]))
fillet5.Radius = 3

# Sketch on XY plane
sketch19 = body.newObject("Sketcher::SketchObject", "Sketch018")
sketch19.AttachmentSupport = (doc.getObject("XY_Plane"), [""])
sketch19.MapMode = "FlatFace"
sketch19.AttachmentOffset = App.Placement(V(0, 0, -31), App.Rotation())
sketch19.addGeometry([
    Part.LineSegment(V(-61.60561, -13.25, 0), V(-61.60561, -43.25, 0)),
    Part.LineSegment(V(-61.60561, -43.25, 0), V(-82.985021, -43.25, 0)),
    Part.LineSegment(V(-82.985021, -43.25, 0), V(-82.985021, -13.25, 0)),
    Part.LineSegment(V(-82.985021, -13.25, 0), V(-61.60561, -13.25, 0)),
], False)
sketch19.addConstraint([
    Sketcher.Constraint("Coincident", 0, 2, 1, 1),
    Sketcher.Constraint("Coincident", 1, 2, 2, 1),
    Sketcher.Constraint("Coincident", 2, 2, 3, 1),
    Sketcher.Constraint("Coincident", 3, 2, 0, 1),
    Sketcher.Constraint("Vertical", 0),
    Sketcher.Constraint("Horizontal", 1),
    Sketcher.Constraint("Vertical", 2),
    Sketcher.Constraint("Horizontal", 3),
    Sketcher.Constraint("DistanceY", 0, 2, 0, 1, Q("30 mm")),
    Sketcher.Constraint("DistanceY", 0, 2, -1, 1, Q("43.25 mm")),
    Sketcher.Constraint("DistanceX", 1, 2, 1, 1, Q("21.379411 mm")),
    Sketcher.Constraint("DistanceX", 0, 2, -1, 1, Q("61.60561 mm")),
])
pocket16 = body.newObject("PartDesign::Pocket", "Pocket015")
pocket16.Profile = sketch19
pocket16.Length = 8
pocket16.Reversed = True

doc.recompute()
